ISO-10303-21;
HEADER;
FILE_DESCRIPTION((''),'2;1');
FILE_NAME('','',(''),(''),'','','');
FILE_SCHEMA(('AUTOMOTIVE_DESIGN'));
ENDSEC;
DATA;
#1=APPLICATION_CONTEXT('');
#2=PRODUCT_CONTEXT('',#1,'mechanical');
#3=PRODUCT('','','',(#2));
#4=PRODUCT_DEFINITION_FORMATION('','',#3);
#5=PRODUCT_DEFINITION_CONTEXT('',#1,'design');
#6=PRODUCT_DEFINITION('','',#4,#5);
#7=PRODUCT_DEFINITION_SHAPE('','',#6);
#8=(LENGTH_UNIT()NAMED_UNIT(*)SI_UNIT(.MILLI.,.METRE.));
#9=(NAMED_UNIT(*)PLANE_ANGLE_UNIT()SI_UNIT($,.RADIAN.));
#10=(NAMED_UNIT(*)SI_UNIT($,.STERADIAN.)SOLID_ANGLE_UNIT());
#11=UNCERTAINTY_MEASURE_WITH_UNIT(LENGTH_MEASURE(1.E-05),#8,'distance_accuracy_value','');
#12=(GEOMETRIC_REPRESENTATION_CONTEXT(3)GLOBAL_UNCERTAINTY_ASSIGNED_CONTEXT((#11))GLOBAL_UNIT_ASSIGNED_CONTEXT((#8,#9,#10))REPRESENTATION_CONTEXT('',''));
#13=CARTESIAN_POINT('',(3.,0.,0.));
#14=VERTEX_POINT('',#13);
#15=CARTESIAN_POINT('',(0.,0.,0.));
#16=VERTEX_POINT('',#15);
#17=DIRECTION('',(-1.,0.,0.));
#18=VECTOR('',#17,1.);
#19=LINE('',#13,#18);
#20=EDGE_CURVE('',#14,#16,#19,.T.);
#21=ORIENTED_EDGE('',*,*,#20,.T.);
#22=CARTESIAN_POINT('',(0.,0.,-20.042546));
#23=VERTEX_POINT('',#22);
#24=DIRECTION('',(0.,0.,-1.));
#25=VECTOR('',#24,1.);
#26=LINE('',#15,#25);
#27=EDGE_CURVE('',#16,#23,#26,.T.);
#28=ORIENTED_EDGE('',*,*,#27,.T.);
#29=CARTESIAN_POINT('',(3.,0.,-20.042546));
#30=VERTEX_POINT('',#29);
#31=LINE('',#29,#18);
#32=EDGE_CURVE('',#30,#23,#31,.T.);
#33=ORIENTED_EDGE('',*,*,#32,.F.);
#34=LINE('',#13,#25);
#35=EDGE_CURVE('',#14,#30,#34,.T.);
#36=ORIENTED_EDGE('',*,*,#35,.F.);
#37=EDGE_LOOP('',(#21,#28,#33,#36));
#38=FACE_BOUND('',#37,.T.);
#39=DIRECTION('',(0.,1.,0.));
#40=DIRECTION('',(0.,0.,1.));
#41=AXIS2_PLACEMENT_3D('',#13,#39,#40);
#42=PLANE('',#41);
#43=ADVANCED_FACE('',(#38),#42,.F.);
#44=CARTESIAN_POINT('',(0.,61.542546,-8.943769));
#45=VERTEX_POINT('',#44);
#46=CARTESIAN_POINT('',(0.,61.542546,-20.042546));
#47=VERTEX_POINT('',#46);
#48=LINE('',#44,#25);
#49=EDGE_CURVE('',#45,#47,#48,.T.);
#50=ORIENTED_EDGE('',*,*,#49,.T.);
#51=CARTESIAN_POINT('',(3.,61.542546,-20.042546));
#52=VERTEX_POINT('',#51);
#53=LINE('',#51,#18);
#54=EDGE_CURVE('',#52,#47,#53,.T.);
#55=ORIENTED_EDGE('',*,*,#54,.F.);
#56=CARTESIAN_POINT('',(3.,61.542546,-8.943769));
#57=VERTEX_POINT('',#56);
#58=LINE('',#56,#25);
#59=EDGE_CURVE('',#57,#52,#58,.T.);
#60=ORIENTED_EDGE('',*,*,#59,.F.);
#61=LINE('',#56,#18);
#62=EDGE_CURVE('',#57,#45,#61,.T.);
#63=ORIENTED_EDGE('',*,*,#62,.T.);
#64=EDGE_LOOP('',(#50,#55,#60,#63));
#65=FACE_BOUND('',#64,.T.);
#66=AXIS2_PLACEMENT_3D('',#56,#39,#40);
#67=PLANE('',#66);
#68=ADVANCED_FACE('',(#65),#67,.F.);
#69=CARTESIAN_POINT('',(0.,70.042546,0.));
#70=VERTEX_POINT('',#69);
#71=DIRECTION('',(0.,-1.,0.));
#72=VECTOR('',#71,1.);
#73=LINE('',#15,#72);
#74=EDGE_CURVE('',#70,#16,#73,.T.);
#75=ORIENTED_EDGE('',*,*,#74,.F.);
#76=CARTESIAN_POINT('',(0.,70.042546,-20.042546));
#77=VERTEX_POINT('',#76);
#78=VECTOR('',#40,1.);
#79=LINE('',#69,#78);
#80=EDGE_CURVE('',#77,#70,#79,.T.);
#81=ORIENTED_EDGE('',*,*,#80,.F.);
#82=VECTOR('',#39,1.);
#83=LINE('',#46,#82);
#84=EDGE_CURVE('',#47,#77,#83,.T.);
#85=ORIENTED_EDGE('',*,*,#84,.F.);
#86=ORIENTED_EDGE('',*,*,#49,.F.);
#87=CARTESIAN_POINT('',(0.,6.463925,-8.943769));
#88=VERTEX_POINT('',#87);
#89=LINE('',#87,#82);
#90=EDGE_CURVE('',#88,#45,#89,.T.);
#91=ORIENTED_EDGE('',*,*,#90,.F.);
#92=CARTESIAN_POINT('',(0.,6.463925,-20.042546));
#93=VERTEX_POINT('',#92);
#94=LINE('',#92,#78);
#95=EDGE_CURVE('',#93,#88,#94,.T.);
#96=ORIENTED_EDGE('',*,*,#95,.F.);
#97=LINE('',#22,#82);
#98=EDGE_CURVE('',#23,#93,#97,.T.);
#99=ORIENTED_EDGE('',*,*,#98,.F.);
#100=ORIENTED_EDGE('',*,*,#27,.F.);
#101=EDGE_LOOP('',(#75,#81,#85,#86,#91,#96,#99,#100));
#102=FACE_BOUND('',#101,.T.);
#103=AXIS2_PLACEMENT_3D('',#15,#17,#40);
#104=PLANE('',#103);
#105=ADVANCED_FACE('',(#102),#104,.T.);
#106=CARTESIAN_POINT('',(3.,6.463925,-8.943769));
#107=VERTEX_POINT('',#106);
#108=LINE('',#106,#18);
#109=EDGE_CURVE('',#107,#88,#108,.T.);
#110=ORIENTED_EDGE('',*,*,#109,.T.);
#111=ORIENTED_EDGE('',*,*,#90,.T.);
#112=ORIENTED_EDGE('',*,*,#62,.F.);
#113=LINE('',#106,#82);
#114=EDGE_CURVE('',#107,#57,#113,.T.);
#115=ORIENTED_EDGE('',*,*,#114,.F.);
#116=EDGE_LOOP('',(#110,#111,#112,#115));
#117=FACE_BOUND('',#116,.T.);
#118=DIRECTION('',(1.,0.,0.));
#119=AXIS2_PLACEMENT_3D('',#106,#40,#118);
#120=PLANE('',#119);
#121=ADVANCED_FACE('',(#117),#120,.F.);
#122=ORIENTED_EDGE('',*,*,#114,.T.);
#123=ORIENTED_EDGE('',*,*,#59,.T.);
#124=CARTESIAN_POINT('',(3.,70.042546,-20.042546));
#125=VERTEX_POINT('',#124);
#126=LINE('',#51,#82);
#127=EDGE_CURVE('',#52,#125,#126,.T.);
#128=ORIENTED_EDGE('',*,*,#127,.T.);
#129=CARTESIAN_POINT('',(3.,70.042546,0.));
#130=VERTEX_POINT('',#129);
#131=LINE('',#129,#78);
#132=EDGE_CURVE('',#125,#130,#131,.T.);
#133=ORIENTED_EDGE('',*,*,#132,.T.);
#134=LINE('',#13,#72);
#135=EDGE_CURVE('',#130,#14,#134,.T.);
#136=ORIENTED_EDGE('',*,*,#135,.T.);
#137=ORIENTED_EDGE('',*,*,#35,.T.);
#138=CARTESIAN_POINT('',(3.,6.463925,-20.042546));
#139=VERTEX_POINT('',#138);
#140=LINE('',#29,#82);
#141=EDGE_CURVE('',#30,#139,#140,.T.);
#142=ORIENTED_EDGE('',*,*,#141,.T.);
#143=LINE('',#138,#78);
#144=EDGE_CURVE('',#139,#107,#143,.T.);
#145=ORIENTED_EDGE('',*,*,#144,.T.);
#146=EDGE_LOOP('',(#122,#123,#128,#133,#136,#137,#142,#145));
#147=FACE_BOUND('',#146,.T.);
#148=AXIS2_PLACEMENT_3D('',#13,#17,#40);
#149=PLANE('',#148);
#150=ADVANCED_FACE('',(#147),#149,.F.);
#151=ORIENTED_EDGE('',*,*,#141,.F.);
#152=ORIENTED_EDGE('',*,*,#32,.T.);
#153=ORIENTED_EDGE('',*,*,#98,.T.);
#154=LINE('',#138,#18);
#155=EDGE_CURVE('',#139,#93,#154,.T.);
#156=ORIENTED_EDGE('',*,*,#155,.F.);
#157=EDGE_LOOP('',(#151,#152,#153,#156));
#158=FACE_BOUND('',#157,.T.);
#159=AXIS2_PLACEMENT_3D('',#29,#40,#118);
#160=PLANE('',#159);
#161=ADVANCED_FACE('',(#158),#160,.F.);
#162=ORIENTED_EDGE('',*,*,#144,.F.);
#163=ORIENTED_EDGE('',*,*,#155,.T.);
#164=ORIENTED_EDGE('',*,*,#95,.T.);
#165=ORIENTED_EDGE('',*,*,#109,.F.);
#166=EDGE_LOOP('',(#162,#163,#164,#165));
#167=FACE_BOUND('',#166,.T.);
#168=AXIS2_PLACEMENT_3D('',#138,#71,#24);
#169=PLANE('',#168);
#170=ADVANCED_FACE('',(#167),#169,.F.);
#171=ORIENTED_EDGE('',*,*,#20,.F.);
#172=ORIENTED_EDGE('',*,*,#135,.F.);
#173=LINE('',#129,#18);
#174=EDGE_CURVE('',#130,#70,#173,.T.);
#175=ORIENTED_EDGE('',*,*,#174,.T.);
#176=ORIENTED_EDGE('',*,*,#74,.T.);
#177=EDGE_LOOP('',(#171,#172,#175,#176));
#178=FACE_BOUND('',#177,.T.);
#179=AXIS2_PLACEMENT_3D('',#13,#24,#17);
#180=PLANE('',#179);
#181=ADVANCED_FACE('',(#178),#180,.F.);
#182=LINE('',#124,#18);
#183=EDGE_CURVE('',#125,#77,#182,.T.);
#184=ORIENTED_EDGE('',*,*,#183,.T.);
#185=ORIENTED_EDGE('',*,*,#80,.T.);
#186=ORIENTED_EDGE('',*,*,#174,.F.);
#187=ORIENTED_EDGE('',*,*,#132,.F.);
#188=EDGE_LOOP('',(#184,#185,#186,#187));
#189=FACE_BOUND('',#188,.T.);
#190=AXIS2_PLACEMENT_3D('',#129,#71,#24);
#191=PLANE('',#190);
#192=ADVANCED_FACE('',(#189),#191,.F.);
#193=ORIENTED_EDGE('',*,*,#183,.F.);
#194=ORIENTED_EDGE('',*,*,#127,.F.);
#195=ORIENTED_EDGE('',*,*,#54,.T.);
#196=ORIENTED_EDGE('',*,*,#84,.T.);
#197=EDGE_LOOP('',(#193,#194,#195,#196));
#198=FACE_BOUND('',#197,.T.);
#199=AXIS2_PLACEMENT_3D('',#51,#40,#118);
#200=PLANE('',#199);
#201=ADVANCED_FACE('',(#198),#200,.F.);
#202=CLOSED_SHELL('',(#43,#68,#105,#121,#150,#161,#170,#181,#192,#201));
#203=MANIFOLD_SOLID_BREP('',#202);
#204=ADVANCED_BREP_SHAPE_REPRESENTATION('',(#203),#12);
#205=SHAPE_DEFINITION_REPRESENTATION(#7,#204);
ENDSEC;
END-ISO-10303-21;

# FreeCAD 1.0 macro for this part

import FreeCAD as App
import Part
import Sketcher
from FreeCAD import Vector
Q = App.Units.Quantity

doc = App.newDocument("Part")
body = doc.addObject("PartDesign::Body", "Body")

# Sketch on YZ plane
sketch1 = body.newObject("Sketcher::SketchObject", "Sketch")
sketch1.AttachmentSupport = (doc.getObject("YZ_Plane"), [""])
sketch1.MapMode = "FlatFace"
sketch1.addGeometry(Part.LineSegment(Vector(0, -20.042546, 0), Vector(6.463925, -20.042546, 0)), False)
sketch1.addGeometry(Part.LineSegment(Vector(6.463925, -20.042546, 0), Vector(6.463925, -8.943769, 0)), False)
sketch1.addGeometry(Part.LineSegment(Vector(6.463925, -8.943769, 0), Vector(61.542546, -8.943769, 0)), False)
sketch1.addGeometry(Part.LineSegment(Vector(61.542546, -8.943769, 0), Vector(61.542546, -20.042546, 0)), False)
sketch1.addGeometry(Part.LineSegment(Vector(61.542546, -20.042546, 0), Vector(70.042546, -20.042546, 0)), False)
sketch1.addGeometry(Part.LineSegment(Vector(70.042546, -20.042546, 0), Vector(70.042546, 0, 0)), False)
sketch1.addGeometry(Part.LineSegment(Vector(70.042546, 0, 0), Vector(0, 0, 0)), False)
sketch1.addGeometry(Part.LineSegment(Vector(0, 0, 0), Vector(0, -20.042546, 0)), False)
sketch1.addConstraint(Sketcher.Constraint("Coincident", 0, 2, 1, 1))
sketch1.addConstraint(Sketcher.Constraint("Coincident", 1, 2, 2, 1))
sketch1.addConstraint(Sketcher.Constraint("Coincident", 2, 2, 3, 1))
sketch1.addConstraint(Sketcher.Constraint("Coincident", 3, 2, 4, 1))
sketch1.addConstraint(Sketcher.Constraint("Coincident", 4, 2, 5, 1))
sketch1.addConstraint(Sketcher.Constraint("Coincident", 5, 2, 6, 1))
sketch1.addConstraint(Sketcher.Constraint("Coincident", 6, 2, 7, 1))
sketch1.addConstraint(Sketcher.Constraint("Coincident", 7, 2, 0, 1))
sketch1.addConstraint(Sketcher.Constraint("Horizontal", 0))
sketch1.addConstraint(Sketcher.Constraint("Vertical", 1))
sketch1.addConstraint(Sketcher.Constraint("Horizontal", 2))
sketch1.addConstraint(Sketcher.Constraint("Vertical", 3))
sketch1.addConstraint(Sketcher.Constraint("Horizontal", 4))
sketch1.addConstraint(Sketcher.Constraint("Vertical", 5))
sketch1.addConstraint(Sketcher.Constraint("Horizontal", 6))
sketch1.addConstraint(Sketcher.Constraint("Vertical", 7))
sketch1.addConstraint(Sketcher.Constraint("Coincident", 6, 2, -1, 1))
sketch1.addConstraint(Sketcher.Constraint("Horizontal", 0, 2, 3, 2))
sketch1.addConstraint(Sketcher.Constraint("DistanceX", 4, 1, 4, 2, Q("8.5 mm")))
sketch1.addConstraint(Sketcher.Constraint("DistanceX", 2, 1, 2, 2, Q("55.078621 mm")))
sketch1.addConstraint(Sketcher.Constraint("DistanceX", 0, 1, 0, 2, Q("6.463925 mm")))
sketch1.addConstraint(Sketcher.Constraint("DistanceY", 1, 1, 1, 2, Q("11.098778 mm")))
sketch1.addConstraint(Sketcher.Constraint("DistanceY", 5, 1, 5, 2, Q("20.042546 mm")))
pad1 = body.newObject("PartDesign::Pad", "Pad")
pad1.Profile = sketch1
pad1.Length = 3

doc.recompute()
